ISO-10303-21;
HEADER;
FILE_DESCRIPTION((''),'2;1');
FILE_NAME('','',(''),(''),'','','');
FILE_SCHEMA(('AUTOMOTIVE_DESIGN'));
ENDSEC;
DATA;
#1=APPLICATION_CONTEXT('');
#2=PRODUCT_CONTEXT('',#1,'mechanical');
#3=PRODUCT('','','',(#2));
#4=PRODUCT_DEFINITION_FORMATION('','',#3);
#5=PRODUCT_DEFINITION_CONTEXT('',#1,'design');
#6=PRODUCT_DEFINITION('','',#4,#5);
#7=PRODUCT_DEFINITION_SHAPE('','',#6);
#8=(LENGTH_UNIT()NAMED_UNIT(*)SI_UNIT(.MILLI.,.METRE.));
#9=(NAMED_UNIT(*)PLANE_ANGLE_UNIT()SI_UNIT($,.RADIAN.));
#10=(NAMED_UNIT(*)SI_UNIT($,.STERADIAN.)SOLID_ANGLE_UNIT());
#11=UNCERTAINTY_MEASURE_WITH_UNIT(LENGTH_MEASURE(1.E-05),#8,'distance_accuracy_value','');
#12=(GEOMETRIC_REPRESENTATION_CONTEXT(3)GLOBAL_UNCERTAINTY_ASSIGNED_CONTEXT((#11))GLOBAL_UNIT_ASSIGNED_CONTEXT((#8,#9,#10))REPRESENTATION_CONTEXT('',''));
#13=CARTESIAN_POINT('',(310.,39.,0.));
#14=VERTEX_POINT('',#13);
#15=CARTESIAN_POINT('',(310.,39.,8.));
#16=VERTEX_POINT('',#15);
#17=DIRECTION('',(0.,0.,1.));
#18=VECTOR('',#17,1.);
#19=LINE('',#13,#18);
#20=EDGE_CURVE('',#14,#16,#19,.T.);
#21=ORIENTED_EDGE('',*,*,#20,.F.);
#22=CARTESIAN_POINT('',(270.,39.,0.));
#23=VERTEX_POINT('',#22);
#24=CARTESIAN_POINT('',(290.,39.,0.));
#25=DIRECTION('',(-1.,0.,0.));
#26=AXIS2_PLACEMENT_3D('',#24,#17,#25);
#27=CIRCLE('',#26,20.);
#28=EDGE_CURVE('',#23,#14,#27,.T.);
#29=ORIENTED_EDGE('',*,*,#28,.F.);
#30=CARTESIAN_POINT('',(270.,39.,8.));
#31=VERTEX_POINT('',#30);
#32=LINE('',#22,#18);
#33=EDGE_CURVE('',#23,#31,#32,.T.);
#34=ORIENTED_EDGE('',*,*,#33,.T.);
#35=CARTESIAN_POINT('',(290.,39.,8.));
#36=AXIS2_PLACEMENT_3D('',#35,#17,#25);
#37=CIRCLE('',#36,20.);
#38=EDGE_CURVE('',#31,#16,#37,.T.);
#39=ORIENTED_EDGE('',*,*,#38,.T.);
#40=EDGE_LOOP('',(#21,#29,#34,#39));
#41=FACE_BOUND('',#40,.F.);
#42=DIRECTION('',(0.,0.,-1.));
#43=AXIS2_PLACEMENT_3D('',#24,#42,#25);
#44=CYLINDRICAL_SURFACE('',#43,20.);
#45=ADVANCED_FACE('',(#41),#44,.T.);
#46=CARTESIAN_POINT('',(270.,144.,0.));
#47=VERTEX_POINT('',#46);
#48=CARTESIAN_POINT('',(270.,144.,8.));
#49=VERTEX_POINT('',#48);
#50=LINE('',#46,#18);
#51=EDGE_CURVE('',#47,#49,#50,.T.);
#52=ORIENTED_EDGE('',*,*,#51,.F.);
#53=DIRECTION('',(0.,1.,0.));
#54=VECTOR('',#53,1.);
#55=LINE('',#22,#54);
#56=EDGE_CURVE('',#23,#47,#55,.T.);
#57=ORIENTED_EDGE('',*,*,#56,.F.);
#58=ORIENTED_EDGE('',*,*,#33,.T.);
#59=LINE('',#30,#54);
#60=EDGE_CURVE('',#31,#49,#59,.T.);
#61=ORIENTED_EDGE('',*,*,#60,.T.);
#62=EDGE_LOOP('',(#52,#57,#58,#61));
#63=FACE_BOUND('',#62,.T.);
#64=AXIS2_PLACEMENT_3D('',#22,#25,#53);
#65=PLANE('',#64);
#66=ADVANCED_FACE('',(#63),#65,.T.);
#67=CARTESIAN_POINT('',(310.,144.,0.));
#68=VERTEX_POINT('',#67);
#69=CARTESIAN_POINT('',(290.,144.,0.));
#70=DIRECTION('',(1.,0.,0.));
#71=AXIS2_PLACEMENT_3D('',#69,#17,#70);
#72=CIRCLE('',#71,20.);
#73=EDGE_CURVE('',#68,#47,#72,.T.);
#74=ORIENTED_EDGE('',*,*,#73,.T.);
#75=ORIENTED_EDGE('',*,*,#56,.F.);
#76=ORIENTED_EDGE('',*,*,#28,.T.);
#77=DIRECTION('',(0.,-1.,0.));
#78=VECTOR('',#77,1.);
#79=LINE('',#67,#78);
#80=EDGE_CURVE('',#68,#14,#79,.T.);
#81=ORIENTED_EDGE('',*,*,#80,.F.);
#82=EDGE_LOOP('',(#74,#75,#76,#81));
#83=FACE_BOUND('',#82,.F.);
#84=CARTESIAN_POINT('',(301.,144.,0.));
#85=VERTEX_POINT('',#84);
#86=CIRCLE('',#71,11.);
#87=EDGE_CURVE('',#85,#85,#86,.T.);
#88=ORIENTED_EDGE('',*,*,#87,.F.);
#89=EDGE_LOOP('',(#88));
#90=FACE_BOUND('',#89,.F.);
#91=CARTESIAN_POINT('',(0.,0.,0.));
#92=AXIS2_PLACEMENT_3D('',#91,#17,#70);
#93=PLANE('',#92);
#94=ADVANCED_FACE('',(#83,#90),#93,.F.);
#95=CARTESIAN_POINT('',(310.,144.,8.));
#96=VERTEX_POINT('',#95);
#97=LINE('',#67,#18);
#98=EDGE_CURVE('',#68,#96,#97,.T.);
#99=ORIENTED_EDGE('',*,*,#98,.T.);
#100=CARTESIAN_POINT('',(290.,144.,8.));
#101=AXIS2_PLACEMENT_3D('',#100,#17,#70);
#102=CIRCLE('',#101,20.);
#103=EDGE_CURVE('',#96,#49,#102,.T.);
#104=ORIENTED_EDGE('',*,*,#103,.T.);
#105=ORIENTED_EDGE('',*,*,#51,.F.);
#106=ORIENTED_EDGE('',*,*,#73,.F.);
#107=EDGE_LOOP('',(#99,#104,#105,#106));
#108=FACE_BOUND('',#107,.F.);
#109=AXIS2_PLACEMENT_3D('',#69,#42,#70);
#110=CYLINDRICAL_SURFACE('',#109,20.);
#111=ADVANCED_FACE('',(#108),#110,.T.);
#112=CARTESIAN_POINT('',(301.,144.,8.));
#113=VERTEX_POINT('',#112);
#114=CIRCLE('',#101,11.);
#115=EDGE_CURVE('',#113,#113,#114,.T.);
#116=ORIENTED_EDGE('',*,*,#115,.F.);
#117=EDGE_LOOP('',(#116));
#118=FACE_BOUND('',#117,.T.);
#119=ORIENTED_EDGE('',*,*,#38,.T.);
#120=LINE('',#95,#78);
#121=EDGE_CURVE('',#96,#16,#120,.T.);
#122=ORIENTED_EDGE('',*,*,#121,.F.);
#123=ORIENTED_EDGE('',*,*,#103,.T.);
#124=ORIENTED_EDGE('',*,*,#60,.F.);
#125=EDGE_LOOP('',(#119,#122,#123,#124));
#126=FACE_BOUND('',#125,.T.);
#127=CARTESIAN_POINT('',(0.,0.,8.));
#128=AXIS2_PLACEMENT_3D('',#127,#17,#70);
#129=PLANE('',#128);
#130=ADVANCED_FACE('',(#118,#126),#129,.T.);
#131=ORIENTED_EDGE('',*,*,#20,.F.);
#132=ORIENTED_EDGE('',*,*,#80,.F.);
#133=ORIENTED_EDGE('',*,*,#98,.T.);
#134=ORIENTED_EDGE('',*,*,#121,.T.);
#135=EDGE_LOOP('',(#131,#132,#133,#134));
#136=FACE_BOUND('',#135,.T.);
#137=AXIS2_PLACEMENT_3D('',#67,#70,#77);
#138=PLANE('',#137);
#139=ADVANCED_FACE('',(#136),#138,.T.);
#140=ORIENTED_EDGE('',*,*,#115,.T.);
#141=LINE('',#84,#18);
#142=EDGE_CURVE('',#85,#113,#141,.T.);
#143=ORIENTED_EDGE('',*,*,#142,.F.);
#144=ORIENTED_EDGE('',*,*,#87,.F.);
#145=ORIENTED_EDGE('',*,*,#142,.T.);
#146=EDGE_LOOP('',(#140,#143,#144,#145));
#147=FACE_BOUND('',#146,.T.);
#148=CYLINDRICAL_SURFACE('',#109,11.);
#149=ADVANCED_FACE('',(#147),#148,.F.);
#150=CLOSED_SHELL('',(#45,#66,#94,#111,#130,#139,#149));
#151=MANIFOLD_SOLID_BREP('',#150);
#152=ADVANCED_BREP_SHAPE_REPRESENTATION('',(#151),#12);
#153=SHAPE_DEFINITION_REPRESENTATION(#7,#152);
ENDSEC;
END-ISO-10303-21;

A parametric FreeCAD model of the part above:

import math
import FreeCAD as App
import Part
import Sketcher
from FreeCAD import Vector
Q = App.Units.Quantity

doc = App.newDocument("Part")
body = doc.addObject("PartDesign::Body", "Body")

sketch1 = body.newObject("Sketcher::SketchObject", "Sketch")
sketch1.AttachmentSupport = (doc.getObject("XY_Plane"), [""])
sketch1.MapMode = "FlatFace"
sketch1.addGeometry([
    Part.LineSegment(Vector(310, 39, 0), Vector(310, 144, 0)),
    Part.ArcOfCircle(Part.Circle(Vector(290, 144, 0), Vector(0, 0, 1), 20), math.radians(0), math.radians(180)),
    Part.LineSegment(Vector(270, 144, 0), Vector(270, 39, 0)),
    Part.ArcOfCircle(Part.Circle(Vector(290, 39, 0), Vector(0, 0, 1), 20), math.radians(180), math.radians(360)),
    Part.Circle(Vector(290, 144, 0), Vector(0, 0, 1), 11),
], False)
sketch1.addConstraint([
    Sketcher.Constraint("Tangent", 0, 2, 1, 1),
    Sketcher.Constraint("Tangent", 1, 2, 2, 1),
    Sketcher.Constraint("Tangent", 2, 2, 3, 1),
    Sketcher.Constraint("Tangent", 3, 2, 0, 1),
    Sketcher.Constraint("Vertical", 0),
    Sketcher.Constraint("Vertical", 2),
    Sketcher.Constraint("Coincident", 4, 3, 1, 3),
    Sketcher.Constraint("Diameter", 4, Q("22 mm")),
    Sketcher.Constraint("Radius", 1, Q("20 mm")),
    Sketcher.Constraint("DistanceY", 0, 1, 0, 2, Q("105 mm")),
    Sketcher.Constraint("DistanceX", -1, 1, 1, 3, Q("290 mm")),
    Sketcher.Constraint("DistanceY", -1, 1, 1, 3, Q("144 mm")),
])
pad1 = body.newObject("PartDesign::Pad", "Pad")
pad1.Profile = sketch1
pad1.Length = 8

doc.recompute()
